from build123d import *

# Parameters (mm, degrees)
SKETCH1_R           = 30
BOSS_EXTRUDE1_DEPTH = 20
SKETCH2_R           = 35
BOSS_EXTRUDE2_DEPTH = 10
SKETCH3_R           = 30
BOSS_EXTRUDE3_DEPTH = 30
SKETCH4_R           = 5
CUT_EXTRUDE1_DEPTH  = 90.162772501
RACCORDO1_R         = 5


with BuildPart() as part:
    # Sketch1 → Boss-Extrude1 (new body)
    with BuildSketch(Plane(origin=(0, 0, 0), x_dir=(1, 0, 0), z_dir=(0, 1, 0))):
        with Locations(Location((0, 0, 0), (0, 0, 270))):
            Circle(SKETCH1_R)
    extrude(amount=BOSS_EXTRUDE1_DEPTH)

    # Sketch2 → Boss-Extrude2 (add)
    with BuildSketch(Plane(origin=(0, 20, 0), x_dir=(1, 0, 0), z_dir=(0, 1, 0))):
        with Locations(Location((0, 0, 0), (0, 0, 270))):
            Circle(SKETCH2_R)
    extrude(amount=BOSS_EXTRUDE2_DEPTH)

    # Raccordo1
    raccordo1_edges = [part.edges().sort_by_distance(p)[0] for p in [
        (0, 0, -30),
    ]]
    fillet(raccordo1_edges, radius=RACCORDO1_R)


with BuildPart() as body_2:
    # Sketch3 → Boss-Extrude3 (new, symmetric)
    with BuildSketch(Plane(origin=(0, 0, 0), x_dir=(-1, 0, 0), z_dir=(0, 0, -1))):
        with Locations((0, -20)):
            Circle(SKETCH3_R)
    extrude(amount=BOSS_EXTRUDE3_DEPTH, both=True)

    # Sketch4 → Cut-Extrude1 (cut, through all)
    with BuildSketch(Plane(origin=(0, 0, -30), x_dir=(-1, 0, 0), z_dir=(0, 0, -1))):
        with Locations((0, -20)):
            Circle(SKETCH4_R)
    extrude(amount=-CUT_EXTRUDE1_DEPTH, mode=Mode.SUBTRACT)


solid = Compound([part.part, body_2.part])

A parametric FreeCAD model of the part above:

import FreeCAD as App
import Part
import Sketcher


def edges_at(feature, points):
    """Names of the edges that pass closest to the given points."""
    edges = feature.Shape.Edges
    near = lambda p: min(range(len(edges)), key=lambda i: edges[i].distToShape(Part.Vertex(*p))[0])
    return sorted({f"Edge{near(p) + 1}" for p in points})

doc = App.newDocument("Part")
body = doc.addObject("PartDesign::Body", "Body")

sketch1 = doc.addObject("Sketcher::SketchObject", "Sketch")
body.addObject(sketch1)
sketch1.AttachmentSupport = (doc.XZ_Plane, [""])
sketch1.MapMode = "FlatFace"
sketch1.addGeometry(Part.Circle(App.Vector(0, 0, 0), App.Vector(0, 0, 1), 30), False)
sketch1.addConstraint(Sketcher.Constraint("Coincident", 0, 3, -1, 1))
sketch1.addConstraint(Sketcher.Constraint("Diameter", 0, 60.0))
pad1 = doc.addObject("PartDesign::Pad", "Pad")
body.addObject(pad1)
pad1.Profile = sketch1
pad1.Length = 20
pad1.Reversed = True

sketch2 = doc.addObject("Sketcher::SketchObject", "Sketch001")
body.addObject(sketch2)
sketch2.AttachmentSupport = (doc.XZ_Plane, [""])
sketch2.MapMode = "FlatFace"
sketch2.AttachmentOffset = App.Placement(App.Vector(0, 0, -20), App.Rotation())
sketch2.addGeometry(Part.Circle(App.Vector(0, 0, 0), App.Vector(0, 0, 1), 35), False)
sketch2.addConstraint(Sketcher.Constraint("Coincident", 0, 3, -1, 1))
sketch2.addConstraint(Sketcher.Constraint("Diameter", 0, 70.0))
pad2 = doc.addObject("PartDesign::Pad", "Pad001")
body.addObject(pad2)
pad2.Profile = sketch2
pad2.Length = 10
pad2.Reversed = True
doc.recompute()

fillet = doc.addObject("PartDesign::Fillet", "Fillet")
body.addObject(fillet)
fillet.Base = (pad2, edges_at(pad2, [(0, 0, -30)]))
fillet.Radius = 5
body2 = doc.addObject("PartDesign::Body", "Body001")

sketch3 = doc.addObject("Sketcher::SketchObject", "Sketch002")
body2.addObject(sketch3)
sketch3.AttachmentSupport = (doc.getObject("XY_Plane001"), [""])
sketch3.MapMode = "FlatFace"
sketch3.addGeometry(Part.Circle(App.Vector(0, -20, 0), App.Vector(0, 0, 1), 30), False)
sketch3.addConstraint(Sketcher.Constraint("PointOnObject", 0, 3, -2))
sketch3.addConstraint(Sketcher.Constraint("Diameter", 0, 60.0))
sketch3.addConstraint(Sketcher.Constraint("DistanceY", 0, 3, -1, 1, 20.0))
pad3 = doc.addObject("PartDesign::Pad", "Pad002")
body2.addObject(pad3)
pad3.Profile = sketch3
pad3.Length = 60
pad3.Midplane = True

sketch4 = doc.addObject("Sketcher::SketchObject", "Sketch003")
body2.addObject(sketch4)
sketch4.AttachmentSupport = (doc.getObject("XY_Plane001"), [""])
sketch4.MapMode = "FlatFace"
sketch4.AttachmentOffset = App.Placement(App.Vector(0, 0, -30), App.Rotation())
sketch4.addGeometry(Part.Circle(App.Vector(0, -20, 0), App.Vector(0, 0, 1), 5), False)
sketch4.addConstraint(Sketcher.Constraint("PointOnObject", 0, 3, -2))
sketch4.addConstraint(Sketcher.Constraint("Diameter", 0, 10.0))
sketch4.addConstraint(Sketcher.Constraint("DistanceY", 0, 3, -1, 1, 20.0))
pocket1 = doc.addObject("PartDesign::Pocket", "Pocket")
body2.addObject(pocket1)
pocket1.Profile = sketch4
pocket1.Type = "ThroughAll"
pocket1.Reversed = True

doc.recompute()
